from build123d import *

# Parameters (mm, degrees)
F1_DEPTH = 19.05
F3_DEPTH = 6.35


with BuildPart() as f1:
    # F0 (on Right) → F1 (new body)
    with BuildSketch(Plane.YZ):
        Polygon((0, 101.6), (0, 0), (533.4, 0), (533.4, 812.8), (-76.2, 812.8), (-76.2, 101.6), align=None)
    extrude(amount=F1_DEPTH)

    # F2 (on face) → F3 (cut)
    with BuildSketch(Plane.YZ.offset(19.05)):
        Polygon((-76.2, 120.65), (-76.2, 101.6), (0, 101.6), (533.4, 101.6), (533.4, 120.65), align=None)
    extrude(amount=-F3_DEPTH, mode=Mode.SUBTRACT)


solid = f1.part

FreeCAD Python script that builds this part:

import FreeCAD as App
import Part
import Sketcher
Q = App.Units.Quantity

doc = App.newDocument("Part")
body = doc.addObject("PartDesign::Body", "Body")

sketch1 = body.newObject("Sketcher::SketchObject", "Sketch")
sketch1.AttachmentSupport = (doc.getObject("YZ_Plane"), [""])
sketch1.MapMode = "FlatFace"
sketch1.addGeometry(Part.LineSegment(App.Vector(0, 101.6, 0), App.Vector(0, 0, 0)), False)
sketch1.addGeometry(Part.LineSegment(App.Vector(0, 0, 0), App.Vector(533.4, 0, 0)), False)
sketch1.addGeometry(Part.LineSegment(App.Vector(533.4, 0, 0), App.Vector(533.4, 812.8, 0)), False)
sketch1.addGeometry(Part.LineSegment(App.Vector(533.4, 812.8, 0), App.Vector(-76.2, 812.8, 0)), False)
sketch1.addGeometry(Part.LineSegment(App.Vector(-76.2, 812.8, 0), App.Vector(-76.2, 101.6, 0)), False)
sketch1.addGeometry(Part.LineSegment(App.Vector(-76.2, 101.6, 0), App.Vector(0, 101.6, 0)), False)
sketch1.addConstraint(Sketcher.Constraint("Coincident", 0, 2, 1, 1))
sketch1.addConstraint(Sketcher.Constraint("Coincident", 1, 2, 2, 1))
sketch1.addConstraint(Sketcher.Constraint("Coincident", 2, 2, 3, 1))
sketch1.addConstraint(Sketcher.Constraint("Coincident", 3, 2, 4, 1))
sketch1.addConstraint(Sketcher.Constraint("Coincident", 4, 2, 5, 1))
sketch1.addConstraint(Sketcher.Constraint("Coincident", 5, 2, 0, 1))
sketch1.addConstraint(Sketcher.Constraint("Vertical", 0))
sketch1.addConstraint(Sketcher.Constraint("Horizontal", 1))
sketch1.addConstraint(Sketcher.Constraint("Vertical", 2))
sketch1.addConstraint(Sketcher.Constraint("Horizontal", 3))
sketch1.addConstraint(Sketcher.Constraint("Vertical", 4))
sketch1.addConstraint(Sketcher.Constraint("Horizontal", 5))
sketch1.addConstraint(Sketcher.Constraint("Coincident", 0, 2, -1, 1))
sketch1.addConstraint(Sketcher.Constraint("DistanceX", 1, 1, 1, 2, Q("21 in")))
sketch1.addConstraint(Sketcher.Constraint("DistanceX", 3, 2, 3, 1, Q("24 in")))
sketch1.addConstraint(Sketcher.Constraint("DistanceY", 0, 2, 0, 1, Q("4 in")))
sketch1.addConstraint(Sketcher.Constraint("DistanceY", 2, 1, 2, 2, Q("32 in")))
pad1 = body.newObject("PartDesign::Pad", "Pad")
pad1.Profile = sketch1
pad1.Length = Q("0.75 in")

sketch2 = body.newObject("Sketcher::SketchObject", "Sketch001")
sketch2.AttachmentSupport = (doc.getObject("YZ_Plane"), [""])
sketch2.MapMode = "FlatFace"
sketch2.AttachmentOffset = App.Placement(App.Vector(0, 0, 0.75 * 25.4), App.Rotation())
sketch2.addGeometry(Part.LineSegment(App.Vector(-76.2, 120.65, 0), App.Vector(-76.2, 101.6, 0)), False)
sketch2.addGeometry(Part.LineSegment(App.Vector(-76.2, 101.6, 0), App.Vector(533.4, 101.6, 0)), False)
sketch2.addGeometry(Part.LineSegment(App.Vector(533.4, 101.6, 0), App.Vector(533.4, 120.65, 0)), False)
sketch2.addGeometry(Part.LineSegment(App.Vector(533.4, 120.65, 0), App.Vector(-76.2, 120.65, 0)), False)
sketch2.addConstraint(Sketcher.Constraint("Coincident", 0, 2, 1, 1))
sketch2.addConstraint(Sketcher.Constraint("Coincident", 1, 2, 2, 1))
sketch2.addConstraint(Sketcher.Constraint("Coincident", 2, 2, 3, 1))
sketch2.addConstraint(Sketcher.Constraint("Coincident", 3, 2, 0, 1))
sketch2.addConstraint(Sketcher.Constraint("Vertical", 0))
sketch2.addConstraint(Sketcher.Constraint("Horizontal", 1))
sketch2.addConstraint(Sketcher.Constraint("Vertical", 2))
sketch2.addConstraint(Sketcher.Constraint("Horizontal", 3))
sketch2.addConstraint(Sketcher.Constraint("DistanceX", 1, 1, 1, 2, Q("24 in")))
sketch2.addConstraint(Sketcher.Constraint("DistanceX", 0, 2, -1, 1, Q("3 in")))
sketch2.addConstraint(Sketcher.Constraint("DistanceY", -1, 1, 0, 2, Q("4 in")))
sketch2.addConstraint(Sketcher.Constraint("DistanceY", 0, 2, 0, 1, Q("0.75 in")))
pocket1 = body.newObject("PartDesign::Pocket", "Pocket")
pocket1.Profile = sketch2
pocket1.Length = Q("0.25 in")

doc.recompute()
